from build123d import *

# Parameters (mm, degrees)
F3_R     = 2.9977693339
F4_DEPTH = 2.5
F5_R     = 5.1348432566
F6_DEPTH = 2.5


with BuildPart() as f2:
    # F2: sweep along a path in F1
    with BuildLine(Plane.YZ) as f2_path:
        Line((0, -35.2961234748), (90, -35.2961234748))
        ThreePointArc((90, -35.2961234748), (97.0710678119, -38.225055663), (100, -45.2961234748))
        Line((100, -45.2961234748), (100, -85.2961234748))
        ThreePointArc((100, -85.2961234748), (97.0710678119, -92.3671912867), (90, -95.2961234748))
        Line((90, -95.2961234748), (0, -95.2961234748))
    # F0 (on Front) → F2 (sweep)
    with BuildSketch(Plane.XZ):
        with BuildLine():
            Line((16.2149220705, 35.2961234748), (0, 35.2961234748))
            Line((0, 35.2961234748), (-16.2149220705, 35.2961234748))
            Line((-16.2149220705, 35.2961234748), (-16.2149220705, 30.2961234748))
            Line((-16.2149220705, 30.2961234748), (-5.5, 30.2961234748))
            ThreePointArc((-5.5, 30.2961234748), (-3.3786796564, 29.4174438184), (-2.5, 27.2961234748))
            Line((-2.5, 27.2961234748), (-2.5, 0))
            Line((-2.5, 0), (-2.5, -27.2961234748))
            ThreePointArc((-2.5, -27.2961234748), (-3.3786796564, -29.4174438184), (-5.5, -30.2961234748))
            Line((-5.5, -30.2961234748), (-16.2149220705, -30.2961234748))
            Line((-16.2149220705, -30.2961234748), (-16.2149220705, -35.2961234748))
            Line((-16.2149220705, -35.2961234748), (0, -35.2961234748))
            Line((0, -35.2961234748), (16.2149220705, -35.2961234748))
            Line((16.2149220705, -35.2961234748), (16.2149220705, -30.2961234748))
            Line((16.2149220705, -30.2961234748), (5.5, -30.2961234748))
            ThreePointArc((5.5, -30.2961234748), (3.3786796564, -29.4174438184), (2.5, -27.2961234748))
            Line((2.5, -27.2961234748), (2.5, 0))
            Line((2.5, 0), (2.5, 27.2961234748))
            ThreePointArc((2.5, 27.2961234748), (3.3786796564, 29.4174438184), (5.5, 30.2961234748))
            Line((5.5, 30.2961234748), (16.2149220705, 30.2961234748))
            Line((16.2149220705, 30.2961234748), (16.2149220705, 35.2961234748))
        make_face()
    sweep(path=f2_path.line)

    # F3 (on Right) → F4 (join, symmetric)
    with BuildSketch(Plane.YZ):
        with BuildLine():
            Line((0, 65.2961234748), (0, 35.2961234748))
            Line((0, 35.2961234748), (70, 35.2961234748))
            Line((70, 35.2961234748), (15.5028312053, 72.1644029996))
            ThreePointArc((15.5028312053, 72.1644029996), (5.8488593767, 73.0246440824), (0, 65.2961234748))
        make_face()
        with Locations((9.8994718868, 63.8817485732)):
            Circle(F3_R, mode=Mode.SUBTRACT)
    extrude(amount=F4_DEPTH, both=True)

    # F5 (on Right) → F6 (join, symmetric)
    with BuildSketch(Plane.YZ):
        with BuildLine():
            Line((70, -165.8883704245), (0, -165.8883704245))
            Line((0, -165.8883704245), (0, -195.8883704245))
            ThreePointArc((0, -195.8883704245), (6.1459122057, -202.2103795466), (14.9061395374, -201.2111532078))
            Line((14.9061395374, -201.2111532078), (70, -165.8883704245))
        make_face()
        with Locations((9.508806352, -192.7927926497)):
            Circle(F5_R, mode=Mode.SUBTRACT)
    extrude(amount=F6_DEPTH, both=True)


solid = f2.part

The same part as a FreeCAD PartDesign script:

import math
import FreeCAD as App
import Part
import Sketcher
from FreeCAD import Vector
Q = App.Units.Quantity

doc = App.newDocument("Part")
body = doc.addObject("PartDesign::Body", "Body")

sketch1 = doc.addObject("Sketcher::SketchObject", "Sketch")
body.addObject(sketch1)
sketch1.AttachmentSupport = (doc.XZ_Plane, [""])
sketch1.MapMode = "FlatFace"
sketch1.addGeometry([
    Part.LineSegment(Vector(16.2, 35.3, 0), Vector(-16.2, 35.3, 0)),
    Part.LineSegment(Vector(-16.2, 35.3, 0), Vector(-16.2, 30.3, 0)),
    Part.LineSegment(Vector(-16.2, 30.3, 0), Vector(-5.5, 30.3, 0)),
    Part.ArcOfCircle(Part.Circle(Vector(-5.5, 27.3, 0), Vector(0, 0, 1), 3), math.radians(0), math.radians(90)),
    Part.LineSegment(Vector(-2.5, 27.3, 0), Vector(-2.5, -27.3, 0)),
    Part.ArcOfCircle(Part.Circle(Vector(-5.5, -27.3, 0), Vector(0, 0, 1), 3), math.radians(-90), math.radians(0)),
    Part.LineSegment(Vector(-5.5, -30.3, 0), Vector(-16.2, -30.3, 0)),
    Part.LineSegment(Vector(-16.2, -30.3, 0), Vector(-16.2, -35.3, 0)),
    Part.LineSegment(Vector(-16.2, -35.3, 0), Vector(16.2, -35.3, 0)),
    Part.LineSegment(Vector(16.2, -35.3, 0), Vector(16.2, -30.3, 0)),
    Part.LineSegment(Vector(16.2, -30.3, 0), Vector(5.5, -30.3, 0)),
    Part.ArcOfCircle(Part.Circle(Vector(5.5, -27.3, 0), Vector(0, 0, 1), 3), math.radians(180), math.radians(270)),
    Part.LineSegment(Vector(2.5, -27.3, 0), Vector(2.5, 27.3, 0)),
    Part.ArcOfCircle(Part.Circle(Vector(5.5, 27.3, 0), Vector(0, 0, 1), 3), math.radians(90), math.radians(180)),
    Part.LineSegment(Vector(5.5, 30.3, 0), Vector(16.2, 30.3, 0)),
    Part.LineSegment(Vector(16.2, 30.3, 0), Vector(16.2, 35.3, 0)),
], False)
sketch1.addConstraint([
    Sketcher.Constraint("Coincident", 0, 2, 1, 1),
    Sketcher.Constraint("Coincident", 1, 2, 2, 1),
    Sketcher.Constraint("Tangent", 2, 2, 3, 2),
    Sketcher.Constraint("Tangent", 3, 1, 4, 1),
    Sketcher.Constraint("Tangent", 4, 2, 5, 2),
    Sketcher.Constraint("Tangent", 5, 1, 6, 1),
    Sketcher.Constraint("Coincident", 6, 2, 7, 1),
    Sketcher.Constraint("Coincident", 7, 2, 8, 1),
    Sketcher.Constraint("Coincident", 8, 2, 9, 1),
    Sketcher.Constraint("Coincident", 9, 2, 10, 1),
    Sketcher.Constraint("Tangent", 10, 2, 11, 2),
    Sketcher.Constraint("Tangent", 11, 1, 12, 1),
    Sketcher.Constraint("Tangent", 12, 2, 13, 2),
    Sketcher.Constraint("Tangent", 13, 1, 14, 1),
    Sketcher.Constraint("Coincident", 14, 2, 15, 1),
    Sketcher.Constraint("Coincident", 15, 2, 0, 1),
    Sketcher.Constraint("Horizontal", 0),
    Sketcher.Constraint("Vertical", 1),
    Sketcher.Constraint("Horizontal", 2),
    Sketcher.Constraint("Vertical", 4),
    Sketcher.Constraint("Horizontal", 6),
    Sketcher.Constraint("Vertical", 7),
    Sketcher.Constraint("Horizontal", 8),
    Sketcher.Constraint("Vertical", 9),
    Sketcher.Constraint("Horizontal", 10),
    Sketcher.Constraint("Vertical", 12),
    Sketcher.Constraint("Horizontal", 14),
    Sketcher.Constraint("Vertical", 15),
    Sketcher.Constraint("Equal", 3, 5),
    Sketcher.Constraint("Equal", 5, 11),
    Sketcher.Constraint("Equal", 11, 13),
    Sketcher.Constraint("Symmetric", 3, 3, 11, 3, -1, 1),
    Sketcher.Constraint("Symmetric", 0, 2, 8, 2, -1, 1),
    Sketcher.Constraint("Symmetric", 6, 2, 14, 2, -1, 1),
    Sketcher.Constraint("Symmetric", 6, 2, 9, 2, -2),
    Sketcher.Constraint("Radius", 3, Q("3 mm")),
    Sketcher.Constraint("DistanceY", 1, 2, 1, 1, Q("5 mm")),
    Sketcher.Constraint("DistanceX", 5, 3, 11, 3, Q("11 mm")),
    Sketcher.Constraint("DistanceX", 0, 2, 0, 1, Q("32.429844 mm")),
    Sketcher.Constraint("DistanceY", 4, 2, 4, 1, Q("54.592247 mm")),
])

sketch2 = doc.addObject("Sketcher::SketchObject", "Sketch001")
body.addObject(sketch2)
sketch2.AttachmentSupport = (doc.YZ_Plane, [""])
sketch2.MapMode = "FlatFace"
sketch2.addGeometry([
    Part.LineSegment(Vector(0, -35, 0), Vector(90, -35, 0)),
    Part.ArcOfCircle(Part.Circle(Vector(90, -45, 0), Vector(0, 0, 1), 10), math.radians(0), math.radians(90)),
    Part.LineSegment(Vector(100, -45, 0), Vector(100, -85, 0)),
    Part.ArcOfCircle(Part.Circle(Vector(90, -85, 0), Vector(0, 0, 1), 10), math.radians(-90), math.radians(0)),
    Part.LineSegment(Vector(90, -95, 0), Vector(0, -95, 0)),
], False)
sketch2.addConstraint([
    Sketcher.Constraint("Tangent", 0, 2, 1, 2),
    Sketcher.Constraint("Tangent", 1, 1, 2, 1),
    Sketcher.Constraint("Tangent", 2, 2, 3, 2),
    Sketcher.Constraint("Tangent", 3, 1, 4, 1),
    Sketcher.Constraint("Horizontal", 0),
    Sketcher.Constraint("Vertical", 2),
    Sketcher.Constraint("Horizontal", 4),
    Sketcher.Constraint("Equal", 1, 3),
    Sketcher.Constraint("PointOnObject", 0, 1, -2),
    Sketcher.Constraint("PointOnObject", 4, 2, -2),
    Sketcher.Constraint("Radius", 1, Q("10 mm")),
    Sketcher.Constraint("DistanceX", 0, 1, 0, 2, Q("90 mm")),
    Sketcher.Constraint("DistanceY", 2, 2, 2, 1, Q("40 mm")),
    Sketcher.Constraint("DistanceY", 1, 3, -1, 1, Q("45.296123 mm")),
])
doc.recompute()

additivepipe = doc.addObject("PartDesign::AdditivePipe", "AdditivePipe")
body.addObject(additivepipe)
additivepipe.Profile = sketch1
additivepipe.Spine = (sketch2, ["Edge1", "Edge2", "Edge3", "Edge4", "Edge5"])

sketch3 = doc.addObject("Sketcher::SketchObject", "Sketch002")
body.addObject(sketch3)
sketch3.AttachmentSupport = (doc.YZ_Plane, [""])
sketch3.MapMode = "FlatFace"
sketch3.addGeometry([
    Part.LineSegment(Vector(0, 65.3, 0), Vector(0, 35.3, 0)),
    Part.LineSegment(Vector(0, 35.3, 0), Vector(70, 35.3, 0)),
    Part.LineSegment(Vector(70, 35.3, 0), Vector(15.5, 72.2, 0)),
    Part.ArcOfCircle(Part.Circle(Vector(9.9, 63.9, 0), Vector(0, 0, 1), 10), math.radians(56), math.radians(172)),
    Part.Circle(Vector(9.9, 63.9, 0), Vector(0, 0, 1), 3),
], False)
sketch3.addConstraint([
    Sketcher.Constraint("Coincident", 0, 2, 1, 1),
    Sketcher.Constraint("Coincident", 1, 2, 2, 1),
    Sketcher.Constraint("Tangent", 2, 2, 3, 1),
    Sketcher.Constraint("Coincident", 3, 2, 0, 1),
    Sketcher.Constraint("Vertical", 0),
    Sketcher.Constraint("Horizontal", 1),
    Sketcher.Constraint("Coincident", 4, 3, 3, 3),
    Sketcher.Constraint("PointOnObject", 0, 2, -2),
    Sketcher.Constraint("Radius", 3, Q("10 mm")),
    Sketcher.Constraint("DistanceX", 1, 1, 1, 2, Q("70 mm")),
    Sketcher.Constraint("DistanceY", 0, 2, 0, 1, Q("30 mm")),
    Sketcher.Constraint("Diameter", 4, Q("5.995539 mm")),
    Sketcher.Constraint("DistanceX", -1, 1, 3, 3, Q("9.899472 mm")),
    Sketcher.Constraint("DistanceY", -1, 1, 3, 3, Q("63.881749 mm")),
])
pad1 = doc.addObject("PartDesign::Pad", "Pad")
body.addObject(pad1)
pad1.Profile = sketch3
pad1.Length = 5
pad1.Midplane = True

sketch4 = doc.addObject("Sketcher::SketchObject", "Sketch003")
body.addObject(sketch4)
sketch4.AttachmentSupport = (doc.YZ_Plane, [""])
sketch4.MapMode = "FlatFace"
sketch4.addGeometry([
    Part.LineSegment(Vector(70, -166, 0), Vector(0, -166, 0)),
    Part.LineSegment(Vector(0, -166, 0), Vector(0, -196, 0)),
    Part.ArcOfCircle(Part.Circle(Vector(10, -193, 0), Vector(0, 0, 1), 10), math.radians(-162), math.radians(-57)),
    Part.LineSegment(Vector(15, -201, 0), Vector(70, -166, 0)),
    Part.Circle(Vector(10, -193, 0), Vector(0, 0, 1), 5),
], False)
sketch4.addConstraint([
    Sketcher.Constraint("Coincident", 0, 2, 1, 1),
    Sketcher.Constraint("Coincident", 1, 2, 2, 1),
    Sketcher.Constraint("Tangent", 2, 2, 3, 1),
    Sketcher.Constraint("Coincident", 3, 2, 0, 1),
    Sketcher.Constraint("Horizontal", 0),
    Sketcher.Constraint("Vertical", 1),
    Sketcher.Constraint("Coincident", 4, 3, 2, 3),
    Sketcher.Constraint("PointOnObject", 0, 2, -2),
    Sketcher.Constraint("Radius", 2, Q("10 mm")),
    Sketcher.Constraint("DistanceX", 0, 2, 0, 1, Q("70 mm")),
    Sketcher.Constraint("DistanceY", 1, 2, 1, 1, Q("30 mm")),
    Sketcher.Constraint("Diameter", 4, Q("10.269687 mm")),
    Sketcher.Constraint("Distance", 3, Q("65.444881 mm")),
    Sketcher.Constraint("DistanceY", 0, 2, -1, 1, Q("165.88837 mm")),
])
pad2 = doc.addObject("PartDesign::Pad", "Pad001")
body.addObject(pad2)
pad2.Profile = sketch4
pad2.Length = 5
pad2.Midplane = True

doc.recompute()
